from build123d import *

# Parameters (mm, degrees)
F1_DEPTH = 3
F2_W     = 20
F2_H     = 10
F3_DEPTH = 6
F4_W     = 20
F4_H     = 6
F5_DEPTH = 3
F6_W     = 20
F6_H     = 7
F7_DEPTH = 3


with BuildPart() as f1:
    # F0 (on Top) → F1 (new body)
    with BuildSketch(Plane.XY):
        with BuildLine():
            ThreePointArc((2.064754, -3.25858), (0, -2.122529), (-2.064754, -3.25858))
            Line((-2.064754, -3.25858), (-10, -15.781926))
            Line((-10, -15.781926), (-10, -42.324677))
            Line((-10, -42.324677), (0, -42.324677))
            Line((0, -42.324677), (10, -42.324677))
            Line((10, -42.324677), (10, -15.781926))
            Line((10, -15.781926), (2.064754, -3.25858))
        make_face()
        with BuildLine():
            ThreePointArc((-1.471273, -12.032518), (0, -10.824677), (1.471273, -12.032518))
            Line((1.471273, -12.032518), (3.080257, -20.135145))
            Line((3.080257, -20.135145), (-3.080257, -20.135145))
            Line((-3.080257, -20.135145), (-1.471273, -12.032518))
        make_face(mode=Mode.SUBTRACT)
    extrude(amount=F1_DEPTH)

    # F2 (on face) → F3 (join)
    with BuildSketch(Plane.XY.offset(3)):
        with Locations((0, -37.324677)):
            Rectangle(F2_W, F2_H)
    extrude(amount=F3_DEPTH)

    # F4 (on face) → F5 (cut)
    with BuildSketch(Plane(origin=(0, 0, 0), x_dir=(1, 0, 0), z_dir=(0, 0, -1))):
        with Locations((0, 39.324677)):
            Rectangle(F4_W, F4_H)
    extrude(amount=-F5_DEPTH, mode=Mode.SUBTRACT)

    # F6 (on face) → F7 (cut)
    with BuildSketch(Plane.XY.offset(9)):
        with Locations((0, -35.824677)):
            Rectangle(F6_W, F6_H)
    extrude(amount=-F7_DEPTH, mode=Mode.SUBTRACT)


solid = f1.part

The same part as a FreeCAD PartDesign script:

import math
import FreeCAD as App
import Part
import Sketcher

V = App.Vector
Q = App.Units.Quantity

doc = App.newDocument("Part")
body = doc.addObject("PartDesign::Body", "Body")

# Sketch on XY plane
sketch1 = body.newObject("Sketcher::SketchObject", "Sketch")
sketch1.AttachmentSupport = (doc.getObject("XY_Plane"), [""])
sketch1.MapMode = "FlatFace"
sketch1.addGeometry(Part.ArcOfCircle(Part.Circle(V(0, -4.6, 0), V(0, 0, 1), 2.4), math.radians(32), math.radians(148)), False)
sketch1.addGeometry(Part.LineSegment(V(-2.1, -3.3, 0), V(-10, -15.8, 0)), False)
sketch1.addGeometry(Part.LineSegment(V(-10, -15.8, 0), V(-10, -42.3, 0)), False)
sketch1.addGeometry(Part.LineSegment(V(-10, -42.3, 0), V(10, -42.3, 0)), False)
sketch1.addGeometry(Part.LineSegment(V(10, -42.3, 0), V(10, -15.8, 0)), False)
sketch1.addGeometry(Part.LineSegment(V(10, -15.8, 0), V(2.1, -3.3, 0)), False)
sketch1.addGeometry(Part.LineSegment(V(-3.1, -20.1, 0), V(-1.5, -12, 0)), False)
sketch1.addGeometry(Part.ArcOfCircle(Part.Circle(V(0, -12.3, 0), V(0, 0, 1), 1.5), math.radians(11), math.radians(169)), False)
sketch1.addGeometry(Part.LineSegment(V(1.5, -12, 0), V(3.1, -20.1, 0)), False)
sketch1.addGeometry(Part.LineSegment(V(3.1, -20.1, 0), V(-3.1, -20.1, 0)), False)
sketch1.addConstraint(Sketcher.Constraint("Tangent", 0, 2, 1, 1))
sketch1.addConstraint(Sketcher.Constraint("Coincident", 1, 2, 2, 1))
sketch1.addConstraint(Sketcher.Constraint("Coincident", 2, 2, 3, 1))
sketch1.addConstraint(Sketcher.Constraint("Coincident", 3, 2, 4, 1))
sketch1.addConstraint(Sketcher.Constraint("Coincident", 4, 2, 5, 1))
sketch1.addConstraint(Sketcher.Constraint("Tangent", 5, 2, 0, 1))
sketch1.addConstraint(Sketcher.Constraint("Tangent", 6, 2, 7, 2))
sketch1.addConstraint(Sketcher.Constraint("Tangent", 7, 1, 8, 1))
sketch1.addConstraint(Sketcher.Constraint("Coincident", 8, 2, 9, 1))
sketch1.addConstraint(Sketcher.Constraint("Coincident", 9, 2, 6, 1))
sketch1.addConstraint(Sketcher.Constraint("Vertical", 2))
sketch1.addConstraint(Sketcher.Constraint("Horizontal", 3))
sketch1.addConstraint(Sketcher.Constraint("Vertical", 4))
sketch1.addConstraint(Sketcher.Constraint("Horizontal", 9))
sketch1.addConstraint(Sketcher.Constraint("Symmetric", 1, 2, 4, 2, -2))
sketch1.addConstraint(Sketcher.Constraint("Symmetric", 6, 2, 7, 1, -2))
sketch1.addConstraint(Sketcher.Constraint("PointOnObject", 0, 3, -2))
sketch1.addConstraint(Sketcher.Constraint("Radius", 7, Q("1.5 mm")))
sketch1.addConstraint(Sketcher.Constraint("DistanceX", 3, 1, 3, 2, Q("20 mm")))
sketch1.addConstraint(Sketcher.Constraint("DistanceY", 2, 2, 7, 3, Q("30 mm")))
sketch1.addConstraint(Sketcher.Constraint("Radius", 0, Q("2.444354 mm")))
sketch1.addConstraint(Sketcher.Constraint("DistanceY", 2, 2, 2, 1, Q("26.542751 mm")))
sketch1.addConstraint(Sketcher.Constraint("Distance", 1, Q("14.825732 mm")))
sketch1.addConstraint(Sketcher.Constraint("DistanceX", 9, 2, 9, 1, Q("6.160514 mm")))
sketch1.addConstraint(Sketcher.Constraint("DistanceY", 0, 2, -1, 1, Q("3.25858 mm")))
sketch1.addConstraint(Sketcher.Constraint("DistanceY", 7, 1, -1, 1, Q("12.032518 mm")))
pad1 = body.newObject("PartDesign::Pad", "Pad")
pad1.Profile = sketch1
pad1.Length = 3

# Sketch on XY plane
sketch2 = body.newObject("Sketcher::SketchObject", "Sketch001")
sketch2.AttachmentSupport = (doc.getObject("XY_Plane"), [""])
sketch2.MapMode = "FlatFace"
sketch2.AttachmentOffset = App.Placement(V(0, 0, 3), App.Rotation())
sketch2.addGeometry(Part.LineSegment(V(-10, -32, 0), V(-10, -42, 0)), False)
sketch2.addGeometry(Part.LineSegment(V(-10, -42, 0), V(10, -42, 0)), False)
sketch2.addGeometry(Part.LineSegment(V(10, -42, 0), V(10, -32, 0)), False)
sketch2.addGeometry(Part.LineSegment(V(10, -32, 0), V(-10, -32, 0)), False)
sketch2.addConstraint(Sketcher.Constraint("Coincident", 0, 2, 1, 1))
sketch2.addConstraint(Sketcher.Constraint("Coincident", 1, 2, 2, 1))
sketch2.addConstraint(Sketcher.Constraint("Coincident", 2, 2, 3, 1))
sketch2.addConstraint(Sketcher.Constraint("Coincident", 3, 2, 0, 1))
sketch2.addConstraint(Sketcher.Constraint("Vertical", 0))
sketch2.addConstraint(Sketcher.Constraint("Horizontal", 1))
sketch2.addConstraint(Sketcher.Constraint("Vertical", 2))
sketch2.addConstraint(Sketcher.Constraint("Horizontal", 3))
sketch2.addConstraint(Sketcher.Constraint("DistanceX", 1, 1, 1, 2, Q("20 mm")))
sketch2.addConstraint(Sketcher.Constraint("DistanceY", 0, 2, 0, 1, Q("10 mm")))
sketch2.addConstraint(Sketcher.Constraint("DistanceX", 0, 2, -1, 1, Q("10 mm")))
sketch2.addConstraint(Sketcher.Constraint("DistanceY", 0, 2, -1, 1, Q("42.324677 mm")))
pad2 = body.newObject("PartDesign::Pad", "Pad001")
pad2.Profile = sketch2
pad2.Length = 6

# Sketch on XY plane
sketch3 = body.newObject("Sketcher::SketchObject", "Sketch002")
sketch3.AttachmentSupport = (doc.getObject("XY_Plane"), [""])
sketch3.MapMode = "FlatFace"
sketch3.addGeometry(Part.LineSegment(V(-10, -42, 0), V(-10, -36, 0)), False)
sketch3.addGeometry(Part.LineSegment(V(-10, -36, 0), V(10, -36, 0)), False)
sketch3.addGeometry(Part.LineSegment(V(10, -36, 0), V(10, -42, 0)), False)
sketch3.addGeometry(Part.LineSegment(V(10, -42, 0), V(-10, -42, 0)), False)
sketch3.addConstraint(Sketcher.Constraint("Coincident", 0, 2, 1, 1))
sketch3.addConstraint(Sketcher.Constraint("Coincident", 1, 2, 2, 1))
sketch3.addConstraint(Sketcher.Constraint("Coincident", 2, 2, 3, 1))
sketch3.addConstraint(Sketcher.Constraint("Coincident", 3, 2, 0, 1))
sketch3.addConstraint(Sketcher.Constraint("Vertical", 0))
sketch3.addConstraint(Sketcher.Constraint("Horizontal", 1))
sketch3.addConstraint(Sketcher.Constraint("Vertical", 2))
sketch3.addConstraint(Sketcher.Constraint("Horizontal", 3))
sketch3.addConstraint(Sketcher.Constraint("DistanceX", 1, 1, 1, 2, Q("20 mm")))
sketch3.addConstraint(Sketcher.Constraint("DistanceY", 0, 1, 0, 2, Q("6 mm")))
sketch3.addConstraint(Sketcher.Constraint("DistanceX", 0, 2, -1, 1, Q("10 mm")))
sketch3.addConstraint(Sketcher.Constraint("DistanceY", 0, 2, -1, 1, Q("36.324677 mm")))
pocket1 = body.newObject("PartDesign::Pocket", "Pocket")
pocket1.Profile = sketch3
pocket1.Length = 3
pocket1.Reversed = True

# Sketch on XY plane
sketch4 = body.newObject("Sketcher::SketchObject", "Sketch003")
sketch4.AttachmentSupport = (doc.getObject("XY_Plane"), [""])
sketch4.MapMode = "FlatFace"
sketch4.AttachmentOffset = App.Placement(V(0, 0, 9), App.Rotation())
sketch4.addGeometry(Part.LineSegment(V(-10, -32, 0), V(-10, -39, 0)), False)
sketch4.addGeometry(Part.LineSegment(V(-10, -39, 0), V(10, -39, 0)), False)
sketch4.addGeometry(Part.LineSegment(V(10, -39, 0), V(10, -32, 0)), False)
sketch4.addGeometry(Part.LineSegment(V(10, -32, 0), V(-10, -32, 0)), False)
sketch4.addConstraint(Sketcher.Constraint("Coincident", 0, 2, 1, 1))
sketch4.addConstraint(Sketcher.Constraint("Coincident", 1, 2, 2, 1))
sketch4.addConstraint(Sketcher.Constraint("Coincident", 2, 2, 3, 1))
sketch4.addConstraint(Sketcher.Constraint("Coincident", 3, 2, 0, 1))
sketch4.addConstraint(Sketcher.Constraint("Vertical", 0))
sketch4.addConstraint(Sketcher.Constraint("Horizontal", 1))
sketch4.addConstraint(Sketcher.Constraint("Vertical", 2))
sketch4.addConstraint(Sketcher.Constraint("Horizontal", 3))
sketch4.addConstraint(Sketcher.Constraint("DistanceX", 1, 1, 1, 2, Q("20 mm")))
sketch4.addConstraint(Sketcher.Constraint("DistanceY", 0, 2, 0, 1, Q("7 mm")))
sketch4.addConstraint(Sketcher.Constraint("DistanceX", 0, 2, -1, 1, Q("10 mm")))
sketch4.addConstraint(Sketcher.Constraint("DistanceY", 0, 2, -1, 1, Q("39.324677 mm")))
pocket2 = body.newObject("PartDesign::Pocket", "Pocket001")
pocket2.Profile = sketch4
pocket2.Length = 3

doc.recompute()
